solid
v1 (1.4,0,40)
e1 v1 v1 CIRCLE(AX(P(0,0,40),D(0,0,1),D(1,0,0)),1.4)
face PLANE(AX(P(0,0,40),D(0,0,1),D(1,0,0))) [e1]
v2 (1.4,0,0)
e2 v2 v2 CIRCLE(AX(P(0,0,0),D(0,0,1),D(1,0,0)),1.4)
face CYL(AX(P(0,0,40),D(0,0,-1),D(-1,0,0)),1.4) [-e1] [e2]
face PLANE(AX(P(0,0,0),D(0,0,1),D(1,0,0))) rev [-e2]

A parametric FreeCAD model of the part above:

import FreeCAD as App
import Part
import Sketcher
from FreeCAD import Vector

doc = App.newDocument("Part")
body = doc.addObject("PartDesign::Body", "Body")

# Sketch on XY plane
sketch1 = body.newObject("Sketcher::SketchObject", "Sketch")
sketch1.AttachmentSupport = (doc.getObject("XY_Plane"), [""])
sketch1.MapMode = "FlatFace"
sketch1.addGeometry(Part.Circle(Vector(0, 0, 0), Vector(0, 0, 1), 1.4), False)
sketch1.addConstraint([
    Sketcher.Constraint("Coincident", 0, 3, -1, 1),
    Sketcher.Constraint("Diameter", 0, 2.8),
])
pad1 = body.newObject("PartDesign::Pad", "Pad")
pad1.Profile = sketch1
pad1.Length = 40

doc.recompute()
